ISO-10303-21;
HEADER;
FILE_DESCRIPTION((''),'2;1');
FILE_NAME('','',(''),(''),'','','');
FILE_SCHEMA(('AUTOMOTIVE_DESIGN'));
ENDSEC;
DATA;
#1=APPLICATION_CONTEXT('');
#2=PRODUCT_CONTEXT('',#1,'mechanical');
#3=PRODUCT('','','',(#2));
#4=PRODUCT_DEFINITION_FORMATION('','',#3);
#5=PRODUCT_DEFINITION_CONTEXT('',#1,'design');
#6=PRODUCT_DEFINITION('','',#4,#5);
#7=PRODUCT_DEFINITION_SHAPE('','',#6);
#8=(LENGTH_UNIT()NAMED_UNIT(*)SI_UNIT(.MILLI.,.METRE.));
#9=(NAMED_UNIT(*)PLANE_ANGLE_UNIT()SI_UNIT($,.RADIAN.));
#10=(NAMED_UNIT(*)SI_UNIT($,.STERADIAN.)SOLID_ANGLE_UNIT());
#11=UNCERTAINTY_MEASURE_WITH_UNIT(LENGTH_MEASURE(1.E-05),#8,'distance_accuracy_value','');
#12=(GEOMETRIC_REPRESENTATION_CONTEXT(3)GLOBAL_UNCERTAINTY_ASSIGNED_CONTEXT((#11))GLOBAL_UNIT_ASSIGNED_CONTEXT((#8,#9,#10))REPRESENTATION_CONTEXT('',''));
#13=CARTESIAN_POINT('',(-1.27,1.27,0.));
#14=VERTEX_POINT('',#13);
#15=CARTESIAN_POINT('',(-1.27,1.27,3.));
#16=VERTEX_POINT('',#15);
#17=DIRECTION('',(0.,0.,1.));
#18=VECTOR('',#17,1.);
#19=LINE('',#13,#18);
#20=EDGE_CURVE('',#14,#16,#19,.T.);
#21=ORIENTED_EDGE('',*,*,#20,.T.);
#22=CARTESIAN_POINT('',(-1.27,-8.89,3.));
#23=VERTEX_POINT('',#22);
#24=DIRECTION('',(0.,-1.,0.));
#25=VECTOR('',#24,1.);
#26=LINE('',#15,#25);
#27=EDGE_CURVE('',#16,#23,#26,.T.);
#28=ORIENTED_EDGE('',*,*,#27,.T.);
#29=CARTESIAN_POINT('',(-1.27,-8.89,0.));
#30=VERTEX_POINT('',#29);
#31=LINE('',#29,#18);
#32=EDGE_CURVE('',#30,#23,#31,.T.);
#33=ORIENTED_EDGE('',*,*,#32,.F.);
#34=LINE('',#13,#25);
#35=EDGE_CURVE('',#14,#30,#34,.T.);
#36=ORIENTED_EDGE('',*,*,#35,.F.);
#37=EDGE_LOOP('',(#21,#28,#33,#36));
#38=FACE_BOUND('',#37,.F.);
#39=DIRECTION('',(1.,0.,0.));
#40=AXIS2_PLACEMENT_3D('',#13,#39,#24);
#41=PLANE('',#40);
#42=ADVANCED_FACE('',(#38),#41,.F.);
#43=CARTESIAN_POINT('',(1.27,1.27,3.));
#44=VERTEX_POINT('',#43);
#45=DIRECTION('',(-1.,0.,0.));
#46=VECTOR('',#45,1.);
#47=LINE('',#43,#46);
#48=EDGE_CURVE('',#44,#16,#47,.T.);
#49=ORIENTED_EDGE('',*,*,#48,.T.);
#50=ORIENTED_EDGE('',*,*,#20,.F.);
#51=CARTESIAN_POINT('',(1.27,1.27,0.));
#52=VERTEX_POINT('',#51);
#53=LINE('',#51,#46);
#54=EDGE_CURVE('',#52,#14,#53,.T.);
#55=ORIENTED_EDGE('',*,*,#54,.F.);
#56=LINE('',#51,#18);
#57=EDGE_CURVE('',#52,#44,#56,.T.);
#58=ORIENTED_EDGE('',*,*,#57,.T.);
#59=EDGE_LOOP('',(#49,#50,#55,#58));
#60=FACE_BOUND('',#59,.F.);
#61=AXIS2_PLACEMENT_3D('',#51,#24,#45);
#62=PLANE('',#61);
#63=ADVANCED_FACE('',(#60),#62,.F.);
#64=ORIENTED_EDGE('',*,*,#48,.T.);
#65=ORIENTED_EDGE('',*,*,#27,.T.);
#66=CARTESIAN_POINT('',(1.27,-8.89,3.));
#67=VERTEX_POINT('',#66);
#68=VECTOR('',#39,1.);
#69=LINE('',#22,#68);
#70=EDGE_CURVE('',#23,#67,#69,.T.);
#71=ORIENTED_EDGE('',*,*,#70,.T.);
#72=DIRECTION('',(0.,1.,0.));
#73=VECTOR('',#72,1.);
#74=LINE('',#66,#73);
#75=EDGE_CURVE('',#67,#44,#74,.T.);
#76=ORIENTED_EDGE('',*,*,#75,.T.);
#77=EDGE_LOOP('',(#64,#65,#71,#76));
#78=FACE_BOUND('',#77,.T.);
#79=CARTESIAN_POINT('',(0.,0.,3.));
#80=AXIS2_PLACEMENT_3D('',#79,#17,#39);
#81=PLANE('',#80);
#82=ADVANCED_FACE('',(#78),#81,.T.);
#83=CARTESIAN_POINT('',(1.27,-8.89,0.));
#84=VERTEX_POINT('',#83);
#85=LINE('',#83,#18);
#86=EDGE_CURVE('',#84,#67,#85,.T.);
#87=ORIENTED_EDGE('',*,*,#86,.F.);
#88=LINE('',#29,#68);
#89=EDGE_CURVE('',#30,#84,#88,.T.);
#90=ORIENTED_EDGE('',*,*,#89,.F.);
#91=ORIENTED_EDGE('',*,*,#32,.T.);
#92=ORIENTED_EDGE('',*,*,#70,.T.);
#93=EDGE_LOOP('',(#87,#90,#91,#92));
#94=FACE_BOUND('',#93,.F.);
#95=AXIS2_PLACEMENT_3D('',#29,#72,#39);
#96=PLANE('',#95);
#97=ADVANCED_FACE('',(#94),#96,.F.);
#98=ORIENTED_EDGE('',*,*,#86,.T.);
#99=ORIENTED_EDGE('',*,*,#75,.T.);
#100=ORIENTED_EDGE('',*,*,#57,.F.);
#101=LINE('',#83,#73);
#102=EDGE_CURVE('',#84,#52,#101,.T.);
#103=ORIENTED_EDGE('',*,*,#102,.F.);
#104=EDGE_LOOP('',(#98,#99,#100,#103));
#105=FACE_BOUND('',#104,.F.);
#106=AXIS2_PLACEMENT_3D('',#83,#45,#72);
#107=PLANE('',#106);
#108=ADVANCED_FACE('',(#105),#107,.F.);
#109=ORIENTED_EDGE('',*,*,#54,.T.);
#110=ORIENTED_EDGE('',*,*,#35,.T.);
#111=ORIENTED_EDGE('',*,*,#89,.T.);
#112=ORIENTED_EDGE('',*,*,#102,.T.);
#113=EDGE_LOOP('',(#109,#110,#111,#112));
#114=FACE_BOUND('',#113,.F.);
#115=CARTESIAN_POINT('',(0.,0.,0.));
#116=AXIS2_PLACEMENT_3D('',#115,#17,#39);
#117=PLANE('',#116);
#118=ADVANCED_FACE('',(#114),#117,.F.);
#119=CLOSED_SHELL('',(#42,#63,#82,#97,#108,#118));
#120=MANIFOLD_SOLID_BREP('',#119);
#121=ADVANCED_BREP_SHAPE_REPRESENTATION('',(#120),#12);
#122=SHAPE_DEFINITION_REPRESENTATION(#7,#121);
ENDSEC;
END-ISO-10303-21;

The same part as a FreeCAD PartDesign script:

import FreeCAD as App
import Part
import Sketcher
from FreeCAD import Vector
Q = App.Units.Quantity


def add_polygon(sketch, points):
    """Adds a closed chain of lines whose ends are joined by coincident constraints."""
    first, n = sketch.GeometryCount, len(points)
    for a, b in zip(points, points[1:] + points[:1]):
        sketch.addGeometry(Part.LineSegment(App.Vector(*a, 0), App.Vector(*b, 0)), False)
    for i in range(n):
        sketch.addConstraint(Sketcher.Constraint("Coincident", first + i, 2, first + (i + 1) % n, 1))

doc = App.newDocument("Part")
body = doc.addObject("PartDesign::Body", "Body")

# Sketch on XY plane
sketch1 = body.newObject("Sketcher::SketchObject", "Sketch")
sketch1.AttachmentSupport = (doc.getObject("XY_Plane"), [""])
sketch1.MapMode = "FlatFace"
add_polygon(sketch1, [(1.3, 1.3), (-1.3, 1.3), (-1.3, -8.9), (1.3, -8.9)])  # lines 0-3
sketch1.addConstraint([
    Sketcher.Constraint("Horizontal", 0),
    Sketcher.Constraint("Vertical", 1),
    Sketcher.Constraint("Horizontal", 2),
    Sketcher.Constraint("Vertical", 3),
    Sketcher.Constraint("DistanceX", 0, 2, 0, 1, Q("0.1 in")),
    Sketcher.Constraint("DistanceY", 1, 2, 1, 1, Q("0.4 in")),
    Sketcher.Constraint("DistanceX", 0, 2, -1, 1, Q("0.05 in")),
    Sketcher.Constraint("DistanceY", -1, 1, 0, 2, Q("0.05 in")),
])
pad1 = body.newObject("PartDesign::Pad", "Pad")
pad1.Profile = sketch1
pad1.Length = Q("0.1181102 in")

doc.recompute()
